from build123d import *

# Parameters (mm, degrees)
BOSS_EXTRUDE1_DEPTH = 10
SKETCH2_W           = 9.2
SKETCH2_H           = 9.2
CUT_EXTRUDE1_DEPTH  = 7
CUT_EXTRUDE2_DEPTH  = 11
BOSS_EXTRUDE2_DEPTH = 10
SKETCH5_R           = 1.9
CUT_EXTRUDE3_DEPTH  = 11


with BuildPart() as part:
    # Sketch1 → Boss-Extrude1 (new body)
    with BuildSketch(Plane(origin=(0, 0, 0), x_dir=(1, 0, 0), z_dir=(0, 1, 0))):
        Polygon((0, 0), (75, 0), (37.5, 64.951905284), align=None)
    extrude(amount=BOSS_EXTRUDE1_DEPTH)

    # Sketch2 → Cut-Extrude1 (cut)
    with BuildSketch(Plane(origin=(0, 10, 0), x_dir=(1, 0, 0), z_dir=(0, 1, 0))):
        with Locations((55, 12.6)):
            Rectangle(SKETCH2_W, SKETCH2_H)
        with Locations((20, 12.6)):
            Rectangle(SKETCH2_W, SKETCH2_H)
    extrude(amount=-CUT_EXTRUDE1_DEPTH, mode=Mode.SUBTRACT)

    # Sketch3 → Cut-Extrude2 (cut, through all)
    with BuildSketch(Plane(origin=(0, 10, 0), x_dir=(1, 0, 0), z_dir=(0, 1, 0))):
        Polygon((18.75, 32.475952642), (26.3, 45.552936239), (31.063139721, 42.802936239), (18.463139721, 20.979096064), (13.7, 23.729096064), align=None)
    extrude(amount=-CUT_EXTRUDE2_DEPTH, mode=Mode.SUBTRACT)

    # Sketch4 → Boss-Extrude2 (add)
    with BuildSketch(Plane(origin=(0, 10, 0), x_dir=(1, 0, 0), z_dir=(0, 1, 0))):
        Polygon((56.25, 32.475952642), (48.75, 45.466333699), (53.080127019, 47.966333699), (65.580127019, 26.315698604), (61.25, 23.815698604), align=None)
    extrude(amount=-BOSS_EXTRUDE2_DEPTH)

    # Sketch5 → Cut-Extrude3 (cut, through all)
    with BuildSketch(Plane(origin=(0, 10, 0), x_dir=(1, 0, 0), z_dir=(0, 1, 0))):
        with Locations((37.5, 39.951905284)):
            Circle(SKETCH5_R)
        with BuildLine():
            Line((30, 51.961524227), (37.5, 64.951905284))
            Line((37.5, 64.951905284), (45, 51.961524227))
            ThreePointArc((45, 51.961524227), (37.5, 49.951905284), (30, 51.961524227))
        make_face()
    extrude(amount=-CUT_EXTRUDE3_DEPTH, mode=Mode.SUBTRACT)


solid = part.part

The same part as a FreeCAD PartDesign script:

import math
import FreeCAD as App
import Part
import Sketcher
Q = App.Units.Quantity


def add_polygon(sketch, points):
    """Adds a closed chain of lines whose ends are joined by coincident constraints."""
    first, n = sketch.GeometryCount, len(points)
    for a, b in zip(points, points[1:] + points[:1]):
        sketch.addGeometry(Part.LineSegment(App.Vector(*a, 0), App.Vector(*b, 0)), False)
    for i in range(n):
        sketch.addConstraint(Sketcher.Constraint("Coincident", first + i, 2, first + (i + 1) % n, 1))

doc = App.newDocument("Part")
body = doc.addObject("PartDesign::Body", "Body")

# Sketch on XZ plane
sketch1 = doc.addObject("Sketcher::SketchObject", "Sketch")
body.addObject(sketch1)
sketch1.AttachmentSupport = (doc.XZ_Plane, [""])
sketch1.MapMode = "FlatFace"
add_polygon(sketch1, [(0, 0), (75, 0), (37.5, -64.951905)])  # lines 0-2
sketch1.addConstraint([
    Sketcher.Constraint("Horizontal", 0),
    Sketcher.Constraint("Coincident", 2, 2, -1, 1),
    Sketcher.Constraint("Equal", 1, 2),
    Sketcher.Constraint("DistanceX", 0, 1, 0, 2, Q("75 mm")),
    Sketcher.Constraint("Angle", 1, Q("-120 deg")),
])
pad1 = doc.addObject("PartDesign::Pad", "Pad")
body.addObject(pad1)
pad1.Profile = sketch1
pad1.Length = 10
pad1.Reversed = True

# Sketch on XZ plane
sketch2 = doc.addObject("Sketcher::SketchObject", "Sketch001")
body.addObject(sketch2)
sketch2.AttachmentSupport = (doc.XZ_Plane, [""])
sketch2.MapMode = "FlatFace"
sketch2.AttachmentOffset = App.Placement(App.Vector(0, 0, -10), App.Rotation())
add_polygon(sketch2, [(50.4, -17.2), (50.4, -8), (59.6, -8), (59.6, -17.2)])  # lines 0-3
add_polygon(sketch2, [(15.4, -17.2), (15.4, -8), (24.6, -8), (24.6, -17.2)])  # lines 4-7
sketch2.addConstraint([
    Sketcher.Constraint("Vertical", 0),
    Sketcher.Constraint("Horizontal", 1),
    Sketcher.Constraint("Vertical", 2),
    Sketcher.Constraint("Horizontal", 3),
    Sketcher.Constraint("Vertical", 4),
    Sketcher.Constraint("Horizontal", 5),
    Sketcher.Constraint("Vertical", 6),
    Sketcher.Constraint("Horizontal", 7),
    Sketcher.Constraint("Horizontal", 1, 2, 4, 2),
    Sketcher.Constraint("Horizontal", 3, 2, 6, 2),
    Sketcher.Constraint("Equal", 3, 5),
    Sketcher.Constraint("Equal", 7, 0),
    Sketcher.Constraint("DistanceX", 1, 1, 1, 2, Q("9.2 mm")),
    Sketcher.Constraint("DistanceY", 0, 2, -1, 1, Q("8 mm")),
    Sketcher.Constraint("DistanceX", 4, 2, 0, 2, Q("35 mm")),
    Sketcher.Constraint("DistanceX", -1, 1, 0, 2, Q("50.4 mm")),
])
pocket1 = doc.addObject("PartDesign::Pocket", "Pocket")
body.addObject(pocket1)
pocket1.Profile = sketch2
pocket1.Length = 7
pocket1.Reversed = True

# Sketch on XZ plane
sketch3 = doc.addObject("Sketcher::SketchObject", "Sketch002")
body.addObject(sketch3)
sketch3.AttachmentSupport = (doc.XZ_Plane, [""])
sketch3.MapMode = "FlatFace"
sketch3.AttachmentOffset = App.Placement(App.Vector(0, 0, -10), App.Rotation())
add_polygon(sketch3, [(26.3, -45.552936), (18.75, -32.475953), (13.7, -23.729096), (18.46314, -20.979096), (31.06314, -42.802936)])  # lines 0-4
sketch3.addConstraint([
    Sketcher.Constraint("Parallel", 0, 1),
    Sketcher.Constraint("Perpendicular", 1, 2),
    Sketcher.Constraint("Perpendicular", 2, 3),
    Sketcher.Constraint("Perpendicular", 3, 4),
    Sketcher.Constraint("Angle", 0, Q("120 deg")),
    Sketcher.Constraint("Distance", 0, Q("15.1 mm")),
    Sketcher.Constraint("Distance", 1, Q("10.1 mm")),
    Sketcher.Constraint("Distance", 2, Q("5.5 mm")),
    Sketcher.Constraint("DistanceX", -1, 1, 1, 2, Q("13.7 mm")),
    Sketcher.Constraint("DistanceY", 0, 2, -1, 1, Q("32.475953 mm")),
])
pocket2 = doc.addObject("PartDesign::Pocket", "Pocket001")
body.addObject(pocket2)
pocket2.Profile = sketch3
pocket2.Type = "ThroughAll"
pocket2.Reversed = True

# Sketch on XZ plane
sketch4 = doc.addObject("Sketcher::SketchObject", "Sketch003")
body.addObject(sketch4)
sketch4.AttachmentSupport = (doc.XZ_Plane, [""])
sketch4.MapMode = "FlatFace"
sketch4.AttachmentOffset = App.Placement(App.Vector(0, 0, -10), App.Rotation())
add_polygon(sketch4, [(48.75, -45.466334), (61.25, -23.815699), (65.580127, -26.315699), (53.080127, -47.966334)])  # lines 0-3
sketch4.addConstraint([
    Sketcher.Constraint("Perpendicular", 0, 1),
    Sketcher.Constraint("Perpendicular", 1, 2),
    Sketcher.Constraint("Perpendicular", 2, 3),
    Sketcher.Constraint("Angle", 0, Q("60 deg")),
    Sketcher.Constraint("Distance", 0, Q("25 mm")),
    Sketcher.Constraint("Distance", 1, Q("5 mm")),
    Sketcher.Constraint("DistanceX", -1, 1, 0, 2, Q("61.25 mm")),
    Sketcher.Constraint("DistanceY", 0, 2, -1, 1, Q("23.815699 mm")),
])
pad2 = doc.addObject("PartDesign::Pad", "Pad001")
body.addObject(pad2)
pad2.Profile = sketch4
pad2.Length = 10

# Sketch on XZ plane
sketch5 = doc.addObject("Sketcher::SketchObject", "Sketch004")
body.addObject(sketch5)
sketch5.AttachmentSupport = (doc.XZ_Plane, [""])
sketch5.MapMode = "FlatFace"
sketch5.AttachmentOffset = App.Placement(App.Vector(0, 0, -10), App.Rotation())
sketch5.addGeometry([
    Part.Circle(App.Vector(37.5, -39.951905, 0), App.Vector(0, 0, 1), 1.9),
    Part.LineSegment(App.Vector(37.5, -64.951905, 0), App.Vector(30, -51.961524, 0)),
    Part.ArcOfCircle(Part.Circle(App.Vector(37.5, -64.951905, 0), App.Vector(0, 0, 1), 15), math.radians(60), math.radians(120)),
    Part.LineSegment(App.Vector(45, -51.961524, 0), App.Vector(37.5, -64.951905, 0)),
], False)
sketch5.addConstraint([
    Sketcher.Constraint("Coincident", 1, 2, 2, 2),
    Sketcher.Constraint("Coincident", 2, 1, 3, 1),
    Sketcher.Constraint("Coincident", 3, 2, 1, 1),
    Sketcher.Constraint("Coincident", 3, 2, 2, 3),
    Sketcher.Constraint("Horizontal", 1, 2, 2, 1),
    Sketcher.Constraint("Vertical", 0, 3, 2, 3),
    Sketcher.Constraint("Radius", 2, Q("15 mm")),
    Sketcher.Constraint("Diameter", 0, Q("3.8 mm")),
    Sketcher.Constraint("Angle", 1, Q("120 deg")),
    Sketcher.Constraint("DistanceX", -1, 1, 1, 2, Q("30 mm")),
    Sketcher.Constraint("DistanceY", 2, 3, 0, 3, Q("25 mm")),
    Sketcher.Constraint("DistanceY", 0, 3, -1, 1, Q("39.951905 mm")),
])
pocket3 = doc.addObject("PartDesign::Pocket", "Pocket002")
body.addObject(pocket3)
pocket3.Profile = sketch5
pocket3.Type = "ThroughAll"
pocket3.Reversed = True

doc.recompute()
